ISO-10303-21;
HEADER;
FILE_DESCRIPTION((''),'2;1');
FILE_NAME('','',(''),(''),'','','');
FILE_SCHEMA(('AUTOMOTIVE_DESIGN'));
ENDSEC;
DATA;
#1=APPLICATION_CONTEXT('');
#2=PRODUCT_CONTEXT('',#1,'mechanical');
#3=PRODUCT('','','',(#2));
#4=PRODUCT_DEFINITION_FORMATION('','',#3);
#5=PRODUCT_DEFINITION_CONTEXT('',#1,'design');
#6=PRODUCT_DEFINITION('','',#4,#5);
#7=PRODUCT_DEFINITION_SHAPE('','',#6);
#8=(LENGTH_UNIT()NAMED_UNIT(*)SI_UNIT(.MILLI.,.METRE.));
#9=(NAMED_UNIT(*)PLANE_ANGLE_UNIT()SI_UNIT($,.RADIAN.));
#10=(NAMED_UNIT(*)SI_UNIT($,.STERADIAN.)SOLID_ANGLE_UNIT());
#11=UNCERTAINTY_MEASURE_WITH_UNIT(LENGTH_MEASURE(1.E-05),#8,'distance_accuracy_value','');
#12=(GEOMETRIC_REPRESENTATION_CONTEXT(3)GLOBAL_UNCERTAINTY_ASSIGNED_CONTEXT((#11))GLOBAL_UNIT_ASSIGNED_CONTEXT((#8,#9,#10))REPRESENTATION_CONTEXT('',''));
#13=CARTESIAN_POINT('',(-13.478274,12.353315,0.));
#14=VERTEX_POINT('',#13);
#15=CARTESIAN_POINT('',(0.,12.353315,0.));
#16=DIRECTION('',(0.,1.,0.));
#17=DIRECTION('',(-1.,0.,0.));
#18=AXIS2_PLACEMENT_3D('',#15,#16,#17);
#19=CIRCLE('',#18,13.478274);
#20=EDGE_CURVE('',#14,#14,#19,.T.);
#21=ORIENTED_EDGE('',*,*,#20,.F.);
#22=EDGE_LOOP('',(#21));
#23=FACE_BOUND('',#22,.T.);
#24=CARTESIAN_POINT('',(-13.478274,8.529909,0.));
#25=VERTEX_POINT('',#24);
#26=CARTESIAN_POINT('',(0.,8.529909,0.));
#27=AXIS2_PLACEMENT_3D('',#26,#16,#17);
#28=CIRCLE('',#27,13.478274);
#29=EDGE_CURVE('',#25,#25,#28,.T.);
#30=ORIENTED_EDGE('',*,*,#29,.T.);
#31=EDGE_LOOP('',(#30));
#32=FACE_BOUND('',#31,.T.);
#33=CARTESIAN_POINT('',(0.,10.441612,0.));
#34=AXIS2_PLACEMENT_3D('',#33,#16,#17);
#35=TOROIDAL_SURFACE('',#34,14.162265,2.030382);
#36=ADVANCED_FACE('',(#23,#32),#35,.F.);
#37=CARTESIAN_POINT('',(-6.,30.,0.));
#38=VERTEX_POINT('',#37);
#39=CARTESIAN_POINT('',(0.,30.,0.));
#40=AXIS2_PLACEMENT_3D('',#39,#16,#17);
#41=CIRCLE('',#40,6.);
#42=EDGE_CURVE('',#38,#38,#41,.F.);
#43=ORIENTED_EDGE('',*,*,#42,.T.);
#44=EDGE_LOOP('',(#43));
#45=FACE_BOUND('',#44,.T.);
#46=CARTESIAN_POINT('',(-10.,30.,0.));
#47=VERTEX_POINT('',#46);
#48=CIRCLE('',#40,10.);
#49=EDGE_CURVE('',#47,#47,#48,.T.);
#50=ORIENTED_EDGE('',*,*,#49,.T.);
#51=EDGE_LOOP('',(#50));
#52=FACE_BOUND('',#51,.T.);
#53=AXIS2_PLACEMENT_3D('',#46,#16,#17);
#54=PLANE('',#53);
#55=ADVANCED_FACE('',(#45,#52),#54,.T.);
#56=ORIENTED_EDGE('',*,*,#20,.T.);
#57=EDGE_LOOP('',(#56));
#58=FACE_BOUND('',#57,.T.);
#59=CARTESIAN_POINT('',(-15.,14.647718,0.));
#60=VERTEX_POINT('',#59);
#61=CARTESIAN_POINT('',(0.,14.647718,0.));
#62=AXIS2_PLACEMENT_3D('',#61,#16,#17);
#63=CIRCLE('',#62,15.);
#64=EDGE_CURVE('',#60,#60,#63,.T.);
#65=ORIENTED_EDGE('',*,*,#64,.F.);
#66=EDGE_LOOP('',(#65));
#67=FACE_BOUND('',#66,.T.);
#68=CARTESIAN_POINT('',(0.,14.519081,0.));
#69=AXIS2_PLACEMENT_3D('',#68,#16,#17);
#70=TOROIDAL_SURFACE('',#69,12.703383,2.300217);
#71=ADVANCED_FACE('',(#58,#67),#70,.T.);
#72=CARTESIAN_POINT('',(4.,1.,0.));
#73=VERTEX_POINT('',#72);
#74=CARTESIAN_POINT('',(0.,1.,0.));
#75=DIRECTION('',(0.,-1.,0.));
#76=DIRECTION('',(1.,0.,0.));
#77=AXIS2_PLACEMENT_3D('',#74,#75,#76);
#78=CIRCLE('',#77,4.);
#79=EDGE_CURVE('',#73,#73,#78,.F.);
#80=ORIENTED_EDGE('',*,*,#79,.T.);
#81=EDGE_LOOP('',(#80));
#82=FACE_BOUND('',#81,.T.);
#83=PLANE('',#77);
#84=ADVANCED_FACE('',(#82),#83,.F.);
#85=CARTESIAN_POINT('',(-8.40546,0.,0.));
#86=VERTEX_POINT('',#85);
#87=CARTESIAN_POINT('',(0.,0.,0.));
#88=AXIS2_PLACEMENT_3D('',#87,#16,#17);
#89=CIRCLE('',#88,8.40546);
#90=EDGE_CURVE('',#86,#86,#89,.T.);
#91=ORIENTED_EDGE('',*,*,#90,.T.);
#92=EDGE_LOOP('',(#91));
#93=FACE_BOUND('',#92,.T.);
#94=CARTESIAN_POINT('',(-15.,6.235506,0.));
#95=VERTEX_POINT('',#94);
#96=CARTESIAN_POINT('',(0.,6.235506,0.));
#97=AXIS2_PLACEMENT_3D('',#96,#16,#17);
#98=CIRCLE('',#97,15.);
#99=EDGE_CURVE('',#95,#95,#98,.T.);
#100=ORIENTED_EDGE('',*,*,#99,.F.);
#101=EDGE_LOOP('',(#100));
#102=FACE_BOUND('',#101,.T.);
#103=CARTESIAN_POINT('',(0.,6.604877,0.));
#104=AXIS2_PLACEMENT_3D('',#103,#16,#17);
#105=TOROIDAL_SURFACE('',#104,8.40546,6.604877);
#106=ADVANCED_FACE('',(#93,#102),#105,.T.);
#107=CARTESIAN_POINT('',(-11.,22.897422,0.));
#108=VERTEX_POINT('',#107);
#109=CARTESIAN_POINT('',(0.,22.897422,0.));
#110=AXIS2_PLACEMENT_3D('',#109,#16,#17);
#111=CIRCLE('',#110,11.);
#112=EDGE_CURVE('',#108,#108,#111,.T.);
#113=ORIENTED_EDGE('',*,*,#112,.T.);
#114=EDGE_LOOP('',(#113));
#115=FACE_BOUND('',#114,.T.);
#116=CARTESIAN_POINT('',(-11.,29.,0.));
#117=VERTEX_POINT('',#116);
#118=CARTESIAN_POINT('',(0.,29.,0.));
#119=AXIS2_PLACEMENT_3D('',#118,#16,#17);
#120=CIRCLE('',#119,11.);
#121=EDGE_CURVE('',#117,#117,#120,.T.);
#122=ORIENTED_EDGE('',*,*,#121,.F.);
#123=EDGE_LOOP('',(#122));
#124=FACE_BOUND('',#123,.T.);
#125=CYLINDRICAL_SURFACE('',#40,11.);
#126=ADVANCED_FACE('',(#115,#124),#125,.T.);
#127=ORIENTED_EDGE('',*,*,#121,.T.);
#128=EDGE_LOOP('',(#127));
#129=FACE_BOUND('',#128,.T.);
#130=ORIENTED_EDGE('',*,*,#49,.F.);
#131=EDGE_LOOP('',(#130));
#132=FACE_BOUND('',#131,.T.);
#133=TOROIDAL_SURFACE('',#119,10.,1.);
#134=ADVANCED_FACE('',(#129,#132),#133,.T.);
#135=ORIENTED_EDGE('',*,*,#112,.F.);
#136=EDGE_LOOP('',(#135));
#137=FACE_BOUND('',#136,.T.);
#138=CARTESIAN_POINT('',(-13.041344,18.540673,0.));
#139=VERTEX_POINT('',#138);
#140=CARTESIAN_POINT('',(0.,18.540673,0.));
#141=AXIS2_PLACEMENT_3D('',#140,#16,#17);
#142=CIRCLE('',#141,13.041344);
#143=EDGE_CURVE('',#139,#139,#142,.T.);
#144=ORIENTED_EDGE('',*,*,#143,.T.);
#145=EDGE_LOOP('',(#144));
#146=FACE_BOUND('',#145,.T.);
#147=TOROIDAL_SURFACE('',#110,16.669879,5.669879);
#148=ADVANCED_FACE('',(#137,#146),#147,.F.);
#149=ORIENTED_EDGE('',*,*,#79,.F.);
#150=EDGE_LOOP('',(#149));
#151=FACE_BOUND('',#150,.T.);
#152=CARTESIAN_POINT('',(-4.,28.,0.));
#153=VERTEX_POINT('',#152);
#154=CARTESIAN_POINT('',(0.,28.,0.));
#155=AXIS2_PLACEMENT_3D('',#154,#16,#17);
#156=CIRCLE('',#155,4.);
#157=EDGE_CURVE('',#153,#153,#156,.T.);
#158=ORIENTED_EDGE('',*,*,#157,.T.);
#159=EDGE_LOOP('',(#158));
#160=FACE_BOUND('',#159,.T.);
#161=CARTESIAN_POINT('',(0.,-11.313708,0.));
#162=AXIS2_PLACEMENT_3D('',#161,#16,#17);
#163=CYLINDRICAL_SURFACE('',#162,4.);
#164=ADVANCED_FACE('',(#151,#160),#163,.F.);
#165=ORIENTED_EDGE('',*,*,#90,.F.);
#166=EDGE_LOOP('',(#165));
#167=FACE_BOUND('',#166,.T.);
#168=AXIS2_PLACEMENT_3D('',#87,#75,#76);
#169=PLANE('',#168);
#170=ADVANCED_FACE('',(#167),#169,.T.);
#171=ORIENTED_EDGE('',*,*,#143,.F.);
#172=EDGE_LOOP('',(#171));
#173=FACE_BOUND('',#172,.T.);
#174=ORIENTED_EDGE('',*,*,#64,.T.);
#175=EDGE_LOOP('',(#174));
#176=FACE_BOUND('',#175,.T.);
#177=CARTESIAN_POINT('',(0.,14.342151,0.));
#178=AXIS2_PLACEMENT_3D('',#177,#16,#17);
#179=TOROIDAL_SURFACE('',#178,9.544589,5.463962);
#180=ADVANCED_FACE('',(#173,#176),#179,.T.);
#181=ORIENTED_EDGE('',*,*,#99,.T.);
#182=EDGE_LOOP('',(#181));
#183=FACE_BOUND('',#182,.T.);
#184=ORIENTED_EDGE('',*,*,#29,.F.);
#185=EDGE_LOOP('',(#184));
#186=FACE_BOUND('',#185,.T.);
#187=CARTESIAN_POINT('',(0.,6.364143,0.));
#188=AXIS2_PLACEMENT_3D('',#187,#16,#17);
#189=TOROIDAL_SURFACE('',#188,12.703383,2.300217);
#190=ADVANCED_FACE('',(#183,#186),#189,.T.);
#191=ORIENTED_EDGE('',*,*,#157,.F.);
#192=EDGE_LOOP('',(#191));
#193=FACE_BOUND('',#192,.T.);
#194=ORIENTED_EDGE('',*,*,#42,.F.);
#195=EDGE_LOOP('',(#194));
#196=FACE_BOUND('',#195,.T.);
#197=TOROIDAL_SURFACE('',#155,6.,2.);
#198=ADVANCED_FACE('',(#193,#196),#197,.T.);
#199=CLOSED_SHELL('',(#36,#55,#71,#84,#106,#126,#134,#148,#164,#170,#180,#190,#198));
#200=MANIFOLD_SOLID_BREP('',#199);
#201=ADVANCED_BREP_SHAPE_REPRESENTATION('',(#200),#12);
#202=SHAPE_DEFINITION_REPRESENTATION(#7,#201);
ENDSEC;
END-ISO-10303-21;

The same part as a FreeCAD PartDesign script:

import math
import FreeCAD as App
import Part
import Sketcher

V = App.Vector


def edges_at(feature, points):
    """Names of the edges that pass closest to the given points."""
    edges = feature.Shape.Edges
    near = lambda p: min(range(len(edges)), key=lambda i: edges[i].distToShape(Part.Vertex(*p))[0])
    return sorted({f"Edge{near(p) + 1}" for p in points})

doc = App.newDocument("Part")
body = doc.addObject("PartDesign::Body", "Body")

# Sketch on XY plane
sketch1 = body.newObject("Sketcher::SketchObject", "Sketch")
sketch1.AttachmentSupport = (doc.getObject("XY_Plane"), [""])
sketch1.MapMode = "FlatFace"
sketch1.addGeometry([
    Part.LineSegment(V(0, 0, 0), V(0, 30, 0)),  # 0
    Part.LineSegment(V(0, 30, 0), V(-10, 30, 0)),  # 1
    Part.ArcOfCircle(Part.Circle(V(-10, 29, 0), V(0, 0, 1), 1), math.radians(90), math.radians(180)),  # 2
    Part.LineSegment(V(-11, 29, 0), V(-11, 22.9, 0)),  # 3
    Part.ArcOfCircle(Part.Circle(V(-16.7, 22.9, 0), V(0, 0, 1), 5.7), math.radians(-50), math.radians(0)),  # 4
    Part.ArcOfCircle(Part.Circle(V(-9.5, 14.3, 0), V(0, 0, 1), 5.5), math.radians(130), math.radians(177)),  # 5
    Part.ArcOfCircle(Part.Circle(V(-12.7, 14.5, 0), V(0, 0, 1), 2.3), math.radians(177), math.radians(250)),  # 6
    Part.ArcOfCircle(Part.Circle(V(-14.2, 10.4, 0), V(0, 0, 1), 2), math.radians(-70), math.radians(70)),  # 7
    Part.ArcOfCircle(Part.Circle(V(-12.7, 6.4, 0), V(0, 0, 1), 2.3), math.radians(110), math.radians(183)),  # 8
    Part.ArcOfCircle(Part.Circle(V(-8.4, 6.6, 0), V(0, 0, 1), 6.6), math.radians(-177), math.radians(-90)),  # 9
    Part.LineSegment(V(-8.4, 0, 0), V(0, 0, 0)),  # 10
], False)
sketch1.addConstraint([
    Sketcher.Constraint("Coincident", 0, 2, 1, 1),
    Sketcher.Constraint("Tangent", 1, 2, 2, 1),
    Sketcher.Constraint("Tangent", 2, 2, 3, 1),
    Sketcher.Constraint("Tangent", 3, 2, 4, 2),
    Sketcher.Constraint("Tangent", 4, 1, 5, 1),
    Sketcher.Constraint("Tangent", 5, 2, 6, 1),
    Sketcher.Constraint("Tangent", 6, 2, 7, 2),
    Sketcher.Constraint("Tangent", 7, 1, 8, 1),
    Sketcher.Constraint("Tangent", 8, 2, 9, 1),
    Sketcher.Constraint("Tangent", 9, 2, 10, 1),
    Sketcher.Constraint("Coincident", 10, 2, 0, 1),
    Sketcher.Constraint("Vertical", 0),
    Sketcher.Constraint("Horizontal", 1),
    Sketcher.Constraint("Vertical", 3),
    Sketcher.Constraint("Horizontal", 10),
    Sketcher.Constraint("Coincident", 10, 2, -1, 1),
    Sketcher.Constraint("Equal", 6, 8),
    Sketcher.Constraint("Vertical", 6, 3, 8, 3),
    Sketcher.Constraint("Vertical", 5, 2, 8, 2),
    Sketcher.Constraint("Radius", 2, 1.0),
    Sketcher.Constraint("DistanceX", 1, 2, 1, 1, 10.0),
    Sketcher.Constraint("DistanceY", 0, 1, 0, 2, 30.0),
    Sketcher.Constraint("DistanceX", 5, 2, -1, 1, 15.0),
    Sketcher.Constraint("Radius", 4, 5.669879),
    Sketcher.Constraint("Radius", 5, 5.463962),
    Sketcher.Constraint("Radius", 6, 2.300217),
    Sketcher.Constraint("Radius", 7, 2.030382),
    Sketcher.Constraint("Radius", 9, 6.604877),
    Sketcher.Constraint("DistanceX", 10, 1, 10, 2, 8.40546),
    Sketcher.Constraint("DistanceY", 3, 2, 3, 1, 6.102578),
])
revolution = body.newObject("PartDesign::Revolution", "Revolution")
revolution.Profile = sketch1
revolution.ReferenceAxis = (sketch1, ["V_Axis"])
revolution.Angle = 360

# Sketch on XZ plane
sketch2 = body.newObject("Sketcher::SketchObject", "Sketch001")
sketch2.AttachmentSupport = (doc.getObject("XZ_Plane"), [""])
sketch2.MapMode = "FlatFace"
sketch2.AttachmentOffset = App.Placement(V(0, 0, -30), App.Rotation())
sketch2.addGeometry(Part.Circle(V(0, 0, 0), V(0, 0, 1), 4), False)
sketch2.addConstraint([
    Sketcher.Constraint("Coincident", 0, 3, -1, 1),
    Sketcher.Constraint("Diameter", 0, 8.0),
])
pocket1 = body.newObject("PartDesign::Pocket", "Pocket")
pocket1.Profile = sketch2
pocket1.Length = 29
pocket1.Reversed = True
doc.recompute()

fillet = body.newObject("PartDesign::Fillet", "Fillet")
fillet.Base = (pocket1, edges_at(pocket1, [(-4, 30, 0)]))
fillet.Radius = 2

doc.recompute()
